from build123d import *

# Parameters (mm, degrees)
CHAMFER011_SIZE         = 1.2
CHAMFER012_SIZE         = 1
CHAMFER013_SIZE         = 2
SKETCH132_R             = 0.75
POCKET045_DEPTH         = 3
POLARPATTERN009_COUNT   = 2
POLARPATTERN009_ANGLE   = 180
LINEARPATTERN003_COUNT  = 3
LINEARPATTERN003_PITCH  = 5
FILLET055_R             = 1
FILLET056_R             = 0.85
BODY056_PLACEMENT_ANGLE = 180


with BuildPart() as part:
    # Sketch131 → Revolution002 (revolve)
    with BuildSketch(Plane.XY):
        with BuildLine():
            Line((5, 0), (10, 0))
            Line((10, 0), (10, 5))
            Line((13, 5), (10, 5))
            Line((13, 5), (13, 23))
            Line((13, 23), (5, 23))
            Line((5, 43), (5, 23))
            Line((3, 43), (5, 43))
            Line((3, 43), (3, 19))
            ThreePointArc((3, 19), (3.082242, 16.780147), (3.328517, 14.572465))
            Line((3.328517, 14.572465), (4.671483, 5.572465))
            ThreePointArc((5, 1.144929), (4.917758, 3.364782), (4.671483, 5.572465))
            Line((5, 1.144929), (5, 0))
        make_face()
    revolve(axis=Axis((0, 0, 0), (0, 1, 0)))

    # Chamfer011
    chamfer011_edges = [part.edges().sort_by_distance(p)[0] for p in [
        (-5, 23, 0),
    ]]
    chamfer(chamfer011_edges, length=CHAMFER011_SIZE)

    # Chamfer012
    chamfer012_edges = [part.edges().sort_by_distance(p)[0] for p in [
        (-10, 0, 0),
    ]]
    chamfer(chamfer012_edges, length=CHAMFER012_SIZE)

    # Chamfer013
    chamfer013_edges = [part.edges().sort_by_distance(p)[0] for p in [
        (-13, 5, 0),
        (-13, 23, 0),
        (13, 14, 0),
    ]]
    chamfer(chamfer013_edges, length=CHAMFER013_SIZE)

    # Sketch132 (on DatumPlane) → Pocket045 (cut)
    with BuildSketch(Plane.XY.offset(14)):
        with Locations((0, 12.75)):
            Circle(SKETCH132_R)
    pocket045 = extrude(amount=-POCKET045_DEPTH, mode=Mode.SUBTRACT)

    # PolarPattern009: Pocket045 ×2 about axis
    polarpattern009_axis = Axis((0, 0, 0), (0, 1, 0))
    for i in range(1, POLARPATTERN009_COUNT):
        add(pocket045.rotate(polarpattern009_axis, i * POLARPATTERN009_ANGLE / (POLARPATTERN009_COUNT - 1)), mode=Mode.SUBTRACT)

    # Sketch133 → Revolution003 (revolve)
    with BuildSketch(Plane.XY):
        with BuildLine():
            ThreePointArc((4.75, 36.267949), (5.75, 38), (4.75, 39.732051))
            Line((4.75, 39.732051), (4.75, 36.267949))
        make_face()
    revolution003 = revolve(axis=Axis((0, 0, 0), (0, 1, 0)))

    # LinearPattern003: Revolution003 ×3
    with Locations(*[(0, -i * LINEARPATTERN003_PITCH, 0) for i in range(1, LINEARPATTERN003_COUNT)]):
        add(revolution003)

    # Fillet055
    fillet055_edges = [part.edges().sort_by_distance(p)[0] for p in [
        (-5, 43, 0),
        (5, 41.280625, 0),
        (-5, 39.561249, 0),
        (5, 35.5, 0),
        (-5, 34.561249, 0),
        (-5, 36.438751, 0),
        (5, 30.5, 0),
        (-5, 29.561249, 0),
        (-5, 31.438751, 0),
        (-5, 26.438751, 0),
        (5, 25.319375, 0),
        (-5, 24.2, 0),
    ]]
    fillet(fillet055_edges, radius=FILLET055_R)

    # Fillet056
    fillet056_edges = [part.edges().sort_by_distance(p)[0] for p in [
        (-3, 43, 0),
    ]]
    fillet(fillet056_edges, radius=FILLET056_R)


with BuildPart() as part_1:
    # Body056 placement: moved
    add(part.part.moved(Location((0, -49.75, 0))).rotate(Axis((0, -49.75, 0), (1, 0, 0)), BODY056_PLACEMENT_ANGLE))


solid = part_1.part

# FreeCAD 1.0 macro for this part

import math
import FreeCAD as App
import Part
import Sketcher


def edges_at(feature, points):
    """Names of the edges that pass closest to the given points."""
    edges = feature.Shape.Edges
    near = lambda p: min(range(len(edges)), key=lambda i: edges[i].distToShape(Part.Vertex(*p))[0])
    return sorted({f"Edge{near(p) + 1}" for p in points})

doc = App.newDocument("Part")
body = doc.addObject("PartDesign::Body", "Body")

# Sketch on XY plane
sketch1 = body.newObject("Sketcher::SketchObject", "Sketch")
sketch1.AttachmentSupport = (doc.getObject("XY_Plane"), [""])
sketch1.MapMode = "FlatFace"
sketch1.addGeometry([
    Part.LineSegment(App.Vector(5, 0, 0), App.Vector(10, 0, 0)),  # 0
    Part.LineSegment(App.Vector(10, 0, 0), App.Vector(10, 5, 0)),  # 1
    Part.LineSegment(App.Vector(10, 5, 0), App.Vector(13, 5, 0)),  # 2
    Part.LineSegment(App.Vector(13, 5, 0), App.Vector(13, 23, 0)),  # 3
    Part.LineSegment(App.Vector(13, 23, 0), App.Vector(5, 23, 0)),  # 4
    Part.LineSegment(App.Vector(5, 23, 0), App.Vector(5, 43, 0)),  # 5
    Part.LineSegment(App.Vector(5, 43, 0), App.Vector(3, 43, 0)),  # 6
    Part.LineSegment(App.Vector(3, 43, 0), App.Vector(3, 19, 0)),  # 7
    Part.ArcOfCircle(Part.Circle(App.Vector(33, 19, 0), App.Vector(0, 0, 1), 30), math.radians(-180), math.radians(-171.51)),  # 8
    Part.LineSegment(App.Vector(3.3, 14.6, 0), App.Vector(4.7, 5.6, 0)),  # 9
    Part.ArcOfCircle(Part.Circle(App.Vector(-25, 1.1, 0), App.Vector(0, 0, 1), 30), math.radians(0), math.radians(8.49)),  # 10
    Part.LineSegment(App.Vector(5, 1.1, 0), App.Vector(5, 0, 0)),  # 11
], False)
sketch1.addConstraint([
    Sketcher.Constraint("Coincident", 0, 2, 1, 1),
    Sketcher.Constraint("Coincident", 1, 2, 2, 1),
    Sketcher.Constraint("Coincident", 2, 2, 3, 1),
    Sketcher.Constraint("Coincident", 3, 2, 4, 1),
    Sketcher.Constraint("Coincident", 4, 2, 5, 1),
    Sketcher.Constraint("Coincident", 5, 2, 6, 1),
    Sketcher.Constraint("Coincident", 6, 2, 7, 1),
    Sketcher.Constraint("Tangent", 7, 2, 8, 1),
    Sketcher.Constraint("Tangent", 8, 2, 9, 1),
    Sketcher.Constraint("Tangent", 9, 2, 10, 2),
    Sketcher.Constraint("Tangent", 10, 1, 11, 1),
    Sketcher.Constraint("Coincident", 11, 2, 0, 1),
    Sketcher.Constraint("Horizontal", 0),
    Sketcher.Constraint("Vertical", 1),
    Sketcher.Constraint("Horizontal", 2),
    Sketcher.Constraint("Vertical", 3),
    Sketcher.Constraint("Horizontal", 4),
    Sketcher.Constraint("Vertical", 5),
    Sketcher.Constraint("Horizontal", 6),
    Sketcher.Constraint("Vertical", 7),
    Sketcher.Constraint("Vertical", 11),
    Sketcher.Constraint("PointOnObject", 0, 2, -1),
    Sketcher.Constraint("Vertical", 5, 2, 10, 1),
    Sketcher.Constraint("Equal", 0, 1),
    Sketcher.Constraint("DistanceX", 0, 1, 0, 2, 5.0),
    Sketcher.Constraint("DistanceX", 2, 1, 2, 2, 3.0),
    Sketcher.Constraint("DistanceX", 6, 2, 6, 1, 2.0),
    Sketcher.Constraint("DistanceY", 3, 1, 3, 2, 18.0),
    Sketcher.Constraint("DistanceY", 5, 1, 5, 2, 20.0),
    Sketcher.Constraint("DistanceY", 7, 2, 7, 1, 24.0),
    Sketcher.Constraint("DistanceX", -1, 1, 0, 2, 10.0),
    Sketcher.Constraint("DistanceY", 9, 2, 8, 2, 9.0),
    Sketcher.Constraint("Radius", 8, 29.999962),
    Sketcher.Constraint("Radius", 10, 29.999989),
])
revolution = body.newObject("PartDesign::Revolution", "Revolution")
revolution.Profile = sketch1
revolution.ReferenceAxis = (sketch1, ["V_Axis"])
revolution.Angle = 360
doc.recompute()

chamfer = body.newObject("PartDesign::Chamfer", "Chamfer")
chamfer.Base = (revolution, edges_at(revolution, [(-5, 23, 0)]))
chamfer.Size = 1.2
doc.recompute()

chamfer2 = body.newObject("PartDesign::Chamfer", "Chamfer001")
chamfer2.Base = (chamfer, edges_at(chamfer, [(-10, 0, 0)]))
chamfer2.Size = 1
doc.recompute()

chamfer3 = body.newObject("PartDesign::Chamfer", "Chamfer002")
chamfer3.Base = (chamfer2, edges_at(chamfer2, [(-13, 5, 0), (-13, 23, 0), (13, 14, 0)]))
chamfer3.Size = 2

# Sketch on XY plane
sketch2 = body.newObject("Sketcher::SketchObject", "Sketch001")
sketch2.AttachmentSupport = (doc.getObject("XY_Plane"), [""])
sketch2.MapMode = "FlatFace"
sketch2.AttachmentOffset = App.Placement(App.Vector(0, 0, 14), App.Rotation())
sketch2.addGeometry(Part.Circle(App.Vector(0, 12.8, 0), App.Vector(0, 0, 1), 0.8), False)
sketch2.addConstraint([
    Sketcher.Constraint("PointOnObject", 0, 3, -2),
    Sketcher.Constraint("Diameter", 0, 1.5),
    Sketcher.Constraint("DistanceY", -1, 1, 0, 3, 12.75),
])
pocket1 = body.newObject("PartDesign::Pocket", "Pocket")
pocket1.Profile = sketch2
pocket1.Length = 3
doc.recompute()

polarpattern = body.newObject("PartDesign::PolarPattern", "PolarPattern")
polarpattern.Originals = [pocket1]
polarpattern.Axis = (doc.getObject("Y_Axis"), [""])
polarpattern.Angle = 360
polarpattern.Occurrences = 2
body.Tip = polarpattern

# Sketch on XY plane
sketch3 = body.newObject("Sketcher::SketchObject", "Sketch002")
sketch3.AttachmentSupport = (doc.getObject("XY_Plane"), [""])
sketch3.MapMode = "FlatFace"
sketch3.addGeometry([
    Part.ArcOfCircle(Part.Circle(App.Vector(3.7, 38, 0), App.Vector(0, 0, 1), 2), math.radians(-60), math.radians(60)),
    Part.LineSegment(App.Vector(4.8, 39.7, 0), App.Vector(4.8, 36.3, 0)),
], False)
sketch3.addConstraint([
    Sketcher.Constraint("Coincident", 0, 1, 1, 2),
    Sketcher.Constraint("Coincident", 1, 1, 0, 2),
    Sketcher.Constraint("Vertical", 1),
    Sketcher.Constraint("Radius", 0, 2.0),
    Sketcher.Constraint("DistanceY", -1, 1, 0, 3, 38.0),
    Sketcher.Constraint("DistanceX", 0, 3, 0, 1, 1.0),
    Sketcher.Constraint("DistanceX", -1, 1, 0, 3, 3.75),
])
revolution2 = body.newObject("PartDesign::Revolution", "Revolution001")
revolution2.Profile = sketch3
revolution2.ReferenceAxis = (sketch3, ["V_Axis"])
revolution2.Angle = 360
doc.recompute()

linearpattern = body.newObject("PartDesign::LinearPattern", "LinearPattern")
linearpattern.Originals = [revolution2]
linearpattern.Direction = (doc.getObject("Y_Axis"), [""])
linearpattern.Mode = "offset"
linearpattern.Offset = 5
linearpattern.Occurrences = 3
linearpattern.Reversed = True
body.Tip = linearpattern
doc.recompute()

fillet = body.newObject("PartDesign::Fillet", "Fillet")
fillet.Base = (linearpattern, edges_at(linearpattern, [
    (-5, 43, 0),
    (5, 41.281, 0),
    (-5, 39.561, 0),
    (5, 35.5, 0),
    (-5, 34.561, 0),
    (-5, 36.439, 0),
    (5, 30.5, 0),
    (-5, 29.561, 0),
    (-5, 31.439, 0),
    (-5, 26.439, 0),
    (5, 25.319, 0),
    (-5, 24.2, 0),
]))
fillet.Radius = 1
doc.recompute()

fillet2 = body.newObject("PartDesign::Fillet", "Fillet001")
fillet2.Base = (fillet, edges_at(fillet, [(-3, 43, 0)]))
fillet2.Radius = 0.85
body2 = doc.addObject("PartDesign::Body", "Body001")
doc.recompute()

body.Placement = App.Placement(App.Vector(0, -49.75, 0), App.Rotation(App.Vector(1, 0, 0), 180))
boolean = body2.newObject("PartDesign::Boolean", "Boolean")
boolean.Type = "Fuse"
boolean.addObjects([body])

doc.recompute()
